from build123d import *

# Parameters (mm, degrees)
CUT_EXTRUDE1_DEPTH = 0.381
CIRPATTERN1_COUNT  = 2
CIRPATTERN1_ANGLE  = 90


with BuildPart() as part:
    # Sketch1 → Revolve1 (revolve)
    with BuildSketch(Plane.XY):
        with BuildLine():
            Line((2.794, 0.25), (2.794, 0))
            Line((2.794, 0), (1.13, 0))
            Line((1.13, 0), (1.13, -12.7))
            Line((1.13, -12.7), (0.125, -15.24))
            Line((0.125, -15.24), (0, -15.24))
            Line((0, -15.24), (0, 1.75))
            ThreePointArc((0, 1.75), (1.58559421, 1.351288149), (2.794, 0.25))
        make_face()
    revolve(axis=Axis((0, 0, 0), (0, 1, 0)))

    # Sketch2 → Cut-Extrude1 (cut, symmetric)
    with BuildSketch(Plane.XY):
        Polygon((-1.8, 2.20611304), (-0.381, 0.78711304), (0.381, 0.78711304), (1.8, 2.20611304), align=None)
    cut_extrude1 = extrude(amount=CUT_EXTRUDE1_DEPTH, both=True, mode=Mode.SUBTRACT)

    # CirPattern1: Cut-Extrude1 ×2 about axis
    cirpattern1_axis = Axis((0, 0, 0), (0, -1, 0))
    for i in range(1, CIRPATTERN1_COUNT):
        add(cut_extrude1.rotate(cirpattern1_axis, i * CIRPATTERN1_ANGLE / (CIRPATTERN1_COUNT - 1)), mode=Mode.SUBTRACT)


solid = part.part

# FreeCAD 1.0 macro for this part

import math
import FreeCAD as App
import Part
import Sketcher
Q = App.Units.Quantity

doc = App.newDocument("Part")
params = doc.addObject("Spreadsheet::Sheet", "Params")
for row, (alias, value) in enumerate([
    ("sketch1_height", "0.5 in"),
    ("revolution_angle", "360 deg"),
    ("sketch2_width", "0.03 in"),
    ("pocket1_length", "0.03 in"),
], start=1):
    params.set(f"A{row}", alias)
    params.set(f"B{row}", "=" + value)
    params.setAlias(f"B{row}", alias)

body = doc.addObject("PartDesign::Body", "Body")

sketch1 = doc.addObject("Sketcher::SketchObject", "Sketch")
body.addObject(sketch1)
sketch1.AttachmentSupport = (doc.XY_Plane, [""])
sketch1.MapMode = "FlatFace"
sketch1.addGeometry(Part.LineSegment(App.Vector(2.794, 0, 0), App.Vector(2.794, 0.25, 0)), False)
sketch1.addGeometry(Part.ArcOfCircle(Part.Circle(App.Vector(0, -1.602145, 0), App.Vector(0, 0, 1), 3.352145), math.radians(33.540437), math.radians(90)), False)
sketch1.addGeometry(Part.LineSegment(App.Vector(0, 1.75, 0), App.Vector(0, -15.24, 0)), False)
sketch1.addGeometry(Part.LineSegment(App.Vector(0, -15.24, 0), App.Vector(0.125, -15.24, 0)), False)
sketch1.addGeometry(Part.LineSegment(App.Vector(0.125, -15.24, 0), App.Vector(1.13, -12.7, 0)), False)
sketch1.addGeometry(Part.LineSegment(App.Vector(1.13, -12.7, 0), App.Vector(1.13, 0, 0)), False)
sketch1.addGeometry(Part.LineSegment(App.Vector(1.13, 0, 0), App.Vector(2.794, 0, 0)), False)
sketch1.addConstraint(Sketcher.Constraint("Coincident", 0, 2, 1, 1))
sketch1.addConstraint(Sketcher.Constraint("Coincident", 1, 2, 2, 1))
sketch1.addConstraint(Sketcher.Constraint("Coincident", 2, 2, 3, 1))
sketch1.addConstraint(Sketcher.Constraint("Coincident", 3, 2, 4, 1))
sketch1.addConstraint(Sketcher.Constraint("Coincident", 4, 2, 5, 1))
sketch1.addConstraint(Sketcher.Constraint("Coincident", 5, 2, 6, 1))
sketch1.addConstraint(Sketcher.Constraint("Coincident", 6, 2, 0, 1))
sketch1.addConstraint(Sketcher.Constraint("Vertical", 0))
sketch1.addConstraint(Sketcher.Constraint("Vertical", 2))
sketch1.addConstraint(Sketcher.Constraint("Horizontal", 3))
sketch1.addConstraint(Sketcher.Constraint("Vertical", 5))
sketch1.addConstraint(Sketcher.Constraint("Horizontal", 6))
sketch1.addConstraint(Sketcher.Constraint("PointOnObject", 1, 3, -2))
sketch1.addConstraint(Sketcher.Constraint("PointOnObject", 1, 2, -2))
sketch1.addConstraint(Sketcher.Constraint("PointOnObject", 5, 2, -1))
sketch1.addConstraint(Sketcher.Constraint("DistanceY", 5, 1, 5, 2, Q("0.5 in")))
sketch1.addConstraint(Sketcher.Constraint("DistanceY", 2, 2, -1, 1, Q("0.6 in")))
sketch1.addConstraint(Sketcher.Constraint("DistanceX", -1, 1, 0, 2, Q("0.11 in")))
sketch1.addConstraint(Sketcher.Constraint("DistanceX", 3, 1, 3, 2, Q("0.125 mm")))
sketch1.addConstraint(Sketcher.Constraint("DistanceX", 6, 1, 6, 2, Q("1.664 mm")))
sketch1.addConstraint(Sketcher.Constraint("DistanceY", 0, 1, 0, 2, Q("0.25 mm")))
sketch1.addConstraint(Sketcher.Constraint("DistanceY", 2, 2, 2, 1, Q("16.99 mm")))
sketch1.setExpression("Constraints[15]", "Params.sketch1_height")
revolution = doc.addObject("PartDesign::Revolution", "Revolution")
body.addObject(revolution)
revolution.Profile = sketch1
revolution.ReferenceAxis = (sketch1, ["V_Axis"])
revolution.setExpression("Angle", "Params.revolution_angle")

sketch2 = doc.addObject("Sketcher::SketchObject", "Sketch001")
body.addObject(sketch2)
sketch2.AttachmentSupport = (doc.XY_Plane, [""])
sketch2.MapMode = "FlatFace"
sketch2.addGeometry(Part.LineSegment(App.Vector(-1.8, 2.206113, 0), App.Vector(-0.381, 0.787113, 0)), False)
sketch2.addGeometry(Part.LineSegment(App.Vector(-0.381, 0.787113, 0), App.Vector(0.381, 0.787113, 0)), False)
sketch2.addGeometry(Part.LineSegment(App.Vector(0.381, 0.787113, 0), App.Vector(1.8, 2.206113, 0)), False)
sketch2.addGeometry(Part.LineSegment(App.Vector(1.8, 2.206113, 0), App.Vector(-1.8, 2.206113, 0)), False)
sketch2.addConstraint(Sketcher.Constraint("Coincident", 0, 2, 1, 1))
sketch2.addConstraint(Sketcher.Constraint("Coincident", 1, 2, 2, 1))
sketch2.addConstraint(Sketcher.Constraint("Coincident", 2, 2, 3, 1))
sketch2.addConstraint(Sketcher.Constraint("Coincident", 3, 2, 0, 1))
sketch2.addConstraint(Sketcher.Constraint("Horizontal", 1))
sketch2.addConstraint(Sketcher.Constraint("Horizontal", 3))
sketch2.addConstraint(Sketcher.Constraint("Perpendicular", 0, 2))
sketch2.addConstraint(Sketcher.Constraint("Equal", 0, 2))
sketch2.addConstraint(Sketcher.Constraint("DistanceX", 1, 1, 1, 2, Q("0.03 in")))
sketch2.addConstraint(Sketcher.Constraint("DistanceX", 0, 2, -1, 1, Q("0.015 in")))
sketch2.addConstraint(Sketcher.Constraint("DistanceX", 3, 2, 3, 1, Q("3.6 mm")))
sketch2.addConstraint(Sketcher.Constraint("DistanceY", -1, 1, 0, 2, Q("0.787113 mm")))
sketch2.setExpression("Constraints[8]", "Params.sketch2_width")
pocket1 = doc.addObject("PartDesign::Pocket", "Pocket")
body.addObject(pocket1)
pocket1.Profile = sketch2
pocket1.setExpression("Length", "Params.pocket1_length")
pocket1.Midplane = True
doc.recompute()

polarpattern = doc.addObject("PartDesign::PolarPattern", "PolarPattern")
body.addObject(polarpattern)
polarpattern.Originals = [pocket1]
polarpattern.Axis = (doc.Y_Axis, [""])
polarpattern.Angle = 90
polarpattern.Occurrences = 2
polarpattern.Reversed = True
body.Tip = polarpattern

doc.recompute()
